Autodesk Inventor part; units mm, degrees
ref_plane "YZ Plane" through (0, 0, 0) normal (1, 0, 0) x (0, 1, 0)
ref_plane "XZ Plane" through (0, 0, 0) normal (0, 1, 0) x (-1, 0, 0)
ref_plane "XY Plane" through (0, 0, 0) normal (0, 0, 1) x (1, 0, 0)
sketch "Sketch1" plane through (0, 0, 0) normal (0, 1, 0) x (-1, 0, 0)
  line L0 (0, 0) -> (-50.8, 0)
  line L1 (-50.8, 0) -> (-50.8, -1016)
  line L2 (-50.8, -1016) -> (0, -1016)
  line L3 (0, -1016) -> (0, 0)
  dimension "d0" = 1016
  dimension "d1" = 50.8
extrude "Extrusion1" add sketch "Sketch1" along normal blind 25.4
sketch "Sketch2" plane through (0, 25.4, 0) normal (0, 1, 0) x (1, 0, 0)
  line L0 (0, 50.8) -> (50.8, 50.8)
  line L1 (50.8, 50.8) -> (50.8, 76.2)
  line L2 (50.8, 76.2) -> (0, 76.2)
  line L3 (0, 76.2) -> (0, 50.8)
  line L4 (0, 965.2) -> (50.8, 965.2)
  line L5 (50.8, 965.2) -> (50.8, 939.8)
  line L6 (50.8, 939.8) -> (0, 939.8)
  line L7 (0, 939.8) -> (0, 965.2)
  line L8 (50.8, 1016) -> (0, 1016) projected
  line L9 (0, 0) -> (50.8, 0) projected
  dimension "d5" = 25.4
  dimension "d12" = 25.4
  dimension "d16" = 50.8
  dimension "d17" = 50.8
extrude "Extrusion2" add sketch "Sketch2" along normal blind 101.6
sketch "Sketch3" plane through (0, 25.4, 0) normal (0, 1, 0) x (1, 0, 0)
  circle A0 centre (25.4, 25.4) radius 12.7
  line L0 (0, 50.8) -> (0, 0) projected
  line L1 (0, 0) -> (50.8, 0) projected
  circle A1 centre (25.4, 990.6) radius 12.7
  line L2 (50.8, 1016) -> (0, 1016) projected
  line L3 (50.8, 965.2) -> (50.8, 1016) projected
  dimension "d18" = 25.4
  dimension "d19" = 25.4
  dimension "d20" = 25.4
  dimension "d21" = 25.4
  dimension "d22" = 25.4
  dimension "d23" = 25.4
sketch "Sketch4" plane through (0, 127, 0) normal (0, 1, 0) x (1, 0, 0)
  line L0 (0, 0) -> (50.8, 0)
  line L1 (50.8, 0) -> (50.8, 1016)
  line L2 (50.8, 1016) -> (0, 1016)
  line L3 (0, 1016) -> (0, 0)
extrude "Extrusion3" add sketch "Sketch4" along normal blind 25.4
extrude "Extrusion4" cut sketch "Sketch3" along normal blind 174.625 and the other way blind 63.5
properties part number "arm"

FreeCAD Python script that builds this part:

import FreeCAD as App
import Part
import Sketcher
Q = App.Units.Quantity


def add_polygon(sketch, points):
    """Adds a closed chain of lines whose ends are joined by coincident constraints."""
    first, n = sketch.GeometryCount, len(points)
    for a, b in zip(points, points[1:] + points[:1]):
        sketch.addGeometry(Part.LineSegment(App.Vector(*a, 0), App.Vector(*b, 0)), False)
    for i in range(n):
        sketch.addConstraint(Sketcher.Constraint("Coincident", first + i, 2, first + (i + 1) % n, 1))

doc = App.newDocument("Part")
body = doc.addObject("PartDesign::Body", "Body")

# Sketch on XZ plane
sketch1 = body.newObject("Sketcher::SketchObject", "Sketch")
sketch1.AttachmentSupport = (doc.getObject("XZ_Plane"), [""])
sketch1.MapMode = "FlatFace"
add_polygon(sketch1, [(0, -1016), (0, 0), (51, 0), (51, -1016)])  # lines 0-3
sketch1.addConstraint([
    Sketcher.Constraint("Vertical", 0),
    Sketcher.Constraint("Horizontal", 1),
    Sketcher.Constraint("Vertical", 2),
    Sketcher.Constraint("Horizontal", 3),
    Sketcher.Constraint("Coincident", 0, 2, -1, 1),
    Sketcher.Constraint("DistanceX", 1, 1, 1, 2, Q("2 in")),
    Sketcher.Constraint("DistanceY", 0, 1, 0, 2, Q("40 in")),
])
pad1 = body.newObject("PartDesign::Pad", "Pad")
pad1.Profile = sketch1
pad1.Length = Q("1 in")
pad1.Reversed = True

# Sketch on XZ plane
sketch2 = body.newObject("Sketcher::SketchObject", "Sketch001")
sketch2.AttachmentSupport = (doc.getObject("XZ_Plane"), [""])
sketch2.MapMode = "FlatFace"
sketch2.AttachmentOffset = App.Placement(App.Vector(0, 0, -1 * 25.4), App.Rotation())
add_polygon(sketch2, [(0, -76), (0, -51), (51, -51), (51, -76)])  # lines 0-3
add_polygon(sketch2, [(51, -965), (0, -965), (0, -940), (51, -940)])  # lines 4-7
sketch2.addConstraint([
    Sketcher.Constraint("Vertical", 0),
    Sketcher.Constraint("Horizontal", 1),
    Sketcher.Constraint("Vertical", 2),
    Sketcher.Constraint("Horizontal", 3),
    Sketcher.Constraint("Horizontal", 4),
    Sketcher.Constraint("Vertical", 5),
    Sketcher.Constraint("Horizontal", 6),
    Sketcher.Constraint("Vertical", 7),
    Sketcher.Constraint("PointOnObject", 0, 2, -2),
    Sketcher.Constraint("PointOnObject", 4, 2, -2),
    Sketcher.Constraint("Vertical", 2, 2, 6, 2),
    Sketcher.Constraint("Equal", 2, 5),
    Sketcher.Constraint("DistanceX", 1, 1, 1, 2, Q("2 in")),
    Sketcher.Constraint("DistanceY", 0, 1, 0, 2, Q("1 in")),
    Sketcher.Constraint("DistanceY", 0, 2, -1, 1, Q("2 in")),
    Sketcher.Constraint("DistanceY", 4, 2, -1, 1, Q("38 in")),
])
pad2 = body.newObject("PartDesign::Pad", "Pad001")
pad2.Profile = sketch2
pad2.Length = Q("4 in")
pad2.Reversed = True

# Sketch on XZ plane
sketch3 = body.newObject("Sketcher::SketchObject", "Sketch002")
sketch3.AttachmentSupport = (doc.getObject("XZ_Plane"), [""])
sketch3.MapMode = "FlatFace"
sketch3.AttachmentOffset = App.Placement(App.Vector(0, 0, -5 * 25.4), App.Rotation())
add_polygon(sketch3, [(0, -1016), (0, 0), (51, 0), (51, -1016)])  # lines 0-3
sketch3.addConstraint([
    Sketcher.Constraint("Vertical", 0),
    Sketcher.Constraint("Horizontal", 1),
    Sketcher.Constraint("Vertical", 2),
    Sketcher.Constraint("Horizontal", 3),
    Sketcher.Constraint("Coincident", 0, 2, -1, 1),
    Sketcher.Constraint("DistanceX", 1, 1, 1, 2, Q("2 in")),
    Sketcher.Constraint("DistanceY", 0, 1, 0, 2, Q("40 in")),
])
pad3 = body.newObject("PartDesign::Pad", "Pad002")
pad3.Profile = sketch3
pad3.Length = Q("1 in")
pad3.Reversed = True

# Sketch on XZ plane
sketch4 = body.newObject("Sketcher::SketchObject", "Sketch003")
sketch4.AttachmentSupport = (doc.getObject("XZ_Plane"), [""])
sketch4.MapMode = "FlatFace"
sketch4.AttachmentOffset = App.Placement(App.Vector(0, 0, -1 * 25.4), App.Rotation())
sketch4.addGeometry([
    Part.Circle(App.Vector(25, -25, 0), App.Vector(0, 0, 1), 13),
    Part.Circle(App.Vector(25, -991, 0), App.Vector(0, 0, 1), 13),
], False)
sketch4.addConstraint([
    Sketcher.Constraint("Equal", 0, 1),
    Sketcher.Constraint("Vertical", 0, 3, 1, 3),
    Sketcher.Constraint("Diameter", 0, Q("1 in")),
    Sketcher.Constraint("DistanceX", -1, 1, 0, 3, Q("1 in")),
    Sketcher.Constraint("DistanceY", 0, 3, -1, 1, Q("1 in")),
    Sketcher.Constraint("DistanceY", 1, 3, -1, 1, Q("39 in")),
])
pocket1 = body.newObject("PartDesign::Pocket", "Pocket")
pocket1.Profile = sketch4
pocket1.Type = "ThroughAll"
pocket1.Midplane = True

doc.recompute()
